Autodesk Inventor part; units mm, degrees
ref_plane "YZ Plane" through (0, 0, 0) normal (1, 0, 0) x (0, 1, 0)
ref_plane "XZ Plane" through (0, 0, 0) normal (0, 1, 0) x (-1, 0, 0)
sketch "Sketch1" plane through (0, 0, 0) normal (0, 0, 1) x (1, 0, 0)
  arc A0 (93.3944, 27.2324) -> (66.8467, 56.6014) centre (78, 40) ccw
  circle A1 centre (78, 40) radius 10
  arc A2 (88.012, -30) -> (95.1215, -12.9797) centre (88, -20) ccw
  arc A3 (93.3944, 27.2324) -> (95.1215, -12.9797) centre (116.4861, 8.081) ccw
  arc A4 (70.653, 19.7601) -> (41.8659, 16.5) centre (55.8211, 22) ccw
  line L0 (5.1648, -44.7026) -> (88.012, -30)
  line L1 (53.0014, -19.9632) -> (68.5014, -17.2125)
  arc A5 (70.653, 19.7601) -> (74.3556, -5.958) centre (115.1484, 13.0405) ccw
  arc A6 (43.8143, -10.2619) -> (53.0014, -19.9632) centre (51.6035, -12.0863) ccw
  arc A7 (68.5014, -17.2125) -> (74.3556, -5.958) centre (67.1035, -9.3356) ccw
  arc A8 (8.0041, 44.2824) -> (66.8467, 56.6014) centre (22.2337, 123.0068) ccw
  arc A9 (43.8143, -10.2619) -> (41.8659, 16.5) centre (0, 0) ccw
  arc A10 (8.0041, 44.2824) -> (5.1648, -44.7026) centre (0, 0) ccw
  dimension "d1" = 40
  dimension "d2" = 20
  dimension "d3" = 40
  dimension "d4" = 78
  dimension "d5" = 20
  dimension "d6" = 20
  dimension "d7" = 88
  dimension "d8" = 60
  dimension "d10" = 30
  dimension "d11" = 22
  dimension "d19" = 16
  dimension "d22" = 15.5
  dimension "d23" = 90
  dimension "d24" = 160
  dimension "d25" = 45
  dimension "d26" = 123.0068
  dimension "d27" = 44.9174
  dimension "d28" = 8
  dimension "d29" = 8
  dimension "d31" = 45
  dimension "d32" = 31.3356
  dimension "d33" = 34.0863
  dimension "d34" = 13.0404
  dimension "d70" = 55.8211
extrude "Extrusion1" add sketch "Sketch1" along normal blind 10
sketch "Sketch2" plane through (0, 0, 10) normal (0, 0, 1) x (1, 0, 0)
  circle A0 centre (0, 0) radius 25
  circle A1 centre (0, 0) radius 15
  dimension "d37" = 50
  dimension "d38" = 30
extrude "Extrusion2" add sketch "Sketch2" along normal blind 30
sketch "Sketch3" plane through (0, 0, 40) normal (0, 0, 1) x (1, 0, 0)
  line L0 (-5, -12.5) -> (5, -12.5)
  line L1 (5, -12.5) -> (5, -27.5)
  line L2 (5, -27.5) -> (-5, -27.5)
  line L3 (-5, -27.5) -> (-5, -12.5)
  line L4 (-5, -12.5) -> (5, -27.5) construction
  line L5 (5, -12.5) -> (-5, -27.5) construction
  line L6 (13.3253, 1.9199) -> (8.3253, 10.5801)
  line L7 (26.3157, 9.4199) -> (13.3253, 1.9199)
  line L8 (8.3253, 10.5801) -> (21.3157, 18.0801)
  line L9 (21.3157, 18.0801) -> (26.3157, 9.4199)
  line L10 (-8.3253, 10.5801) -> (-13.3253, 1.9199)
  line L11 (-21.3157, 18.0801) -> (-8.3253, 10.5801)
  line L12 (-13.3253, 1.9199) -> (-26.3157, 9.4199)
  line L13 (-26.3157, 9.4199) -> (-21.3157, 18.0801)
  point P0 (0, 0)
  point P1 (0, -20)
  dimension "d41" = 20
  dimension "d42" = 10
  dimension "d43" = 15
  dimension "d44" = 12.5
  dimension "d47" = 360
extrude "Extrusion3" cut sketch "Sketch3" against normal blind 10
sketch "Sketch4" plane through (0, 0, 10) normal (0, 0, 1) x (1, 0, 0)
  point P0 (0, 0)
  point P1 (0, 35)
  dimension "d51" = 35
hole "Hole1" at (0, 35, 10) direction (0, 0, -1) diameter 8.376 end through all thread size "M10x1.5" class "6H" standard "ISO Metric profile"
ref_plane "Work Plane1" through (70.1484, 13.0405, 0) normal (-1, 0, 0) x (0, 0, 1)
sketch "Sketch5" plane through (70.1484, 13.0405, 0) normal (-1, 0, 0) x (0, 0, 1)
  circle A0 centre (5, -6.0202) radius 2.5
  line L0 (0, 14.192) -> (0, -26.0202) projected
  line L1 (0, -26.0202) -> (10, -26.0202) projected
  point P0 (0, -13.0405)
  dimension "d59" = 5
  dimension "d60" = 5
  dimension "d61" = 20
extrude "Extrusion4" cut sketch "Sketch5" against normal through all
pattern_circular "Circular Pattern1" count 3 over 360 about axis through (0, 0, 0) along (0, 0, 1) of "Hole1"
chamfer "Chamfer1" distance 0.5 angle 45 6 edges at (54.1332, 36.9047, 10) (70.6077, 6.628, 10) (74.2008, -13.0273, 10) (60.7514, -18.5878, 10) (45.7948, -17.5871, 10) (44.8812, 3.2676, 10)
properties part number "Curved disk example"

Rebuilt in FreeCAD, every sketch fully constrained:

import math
import FreeCAD as App
import Part
import Sketcher
Q = App.Units.Quantity


def edges_at(feature, points):
    """Names of the edges that pass closest to the given points."""
    edges = feature.Shape.Edges
    near = lambda p: min(range(len(edges)), key=lambda i: edges[i].distToShape(Part.Vertex(*p))[0])
    return sorted({f"Edge{near(p) + 1}" for p in points})

doc = App.newDocument("Part")
body = doc.addObject("PartDesign::Body", "Body")

# Sketch on XY plane
sketch1 = body.newObject("Sketcher::SketchObject", "Sketch")
sketch1.AttachmentSupport = (doc.getObject("XY_Plane"), [""])
sketch1.MapMode = "FlatFace"
sketch1.addGeometry([
    Part.ArcOfCircle(Part.Circle(App.Vector(116.4861, 8.081, 0), App.Vector(0, 0, 1), 30.000046), math.radians(140.328946), math.radians(224.589587)),  # 0
    Part.ArcOfCircle(Part.Circle(App.Vector(78, 40, 0), App.Vector(0, 0, 1), 19.999979), math.radians(-39.671176), math.radians(123.894346)),  # 1
    Part.ArcOfCircle(Part.Circle(App.Vector(22.2337, 123.0068, 0), App.Vector(0, 0, 1), 80.000079), math.radians(-100.245708), math.radians(-56.105693)),  # 2
    Part.ArcOfCircle(Part.Circle(App.Vector(0, 0, 0), App.Vector(0, 0, 1), 44.999962), math.radians(79.754338), math.radians(276.590555)),  # 3
    Part.LineSegment(App.Vector(5.1648, -44.7026, 0), App.Vector(88.012, -30, 0)),  # 4
    Part.ArcOfCircle(Part.Circle(App.Vector(88, -20, 0), App.Vector(0, 0, 1), 10.000007), math.radians(-89.931245), math.radians(44.589993)),  # 5
    Part.ArcOfCircle(Part.Circle(App.Vector(55.8211, 22, 0), App.Vector(0, 0, 1), 15.00008), math.radians(-8.587862), math.radians(201.510308)),  # 6
    Part.ArcOfCircle(Part.Circle(App.Vector(115.1484, 13.0405, 0), App.Vector(0, 0, 1), 44.999929), math.radians(171.412207), math.radians(204.972888)),  # 7
    Part.ArcOfCircle(Part.Circle(App.Vector(67.1035, -9.3356, 0), App.Vector(0, 0, 1), 7.99998), math.radians(-79.936592), math.radians(24.973324)),  # 8
    Part.LineSegment(App.Vector(68.5014, -17.2125, 0), App.Vector(53.0014, -19.9632, 0)),  # 9
    Part.ArcOfCircle(Part.Circle(App.Vector(51.6035, -12.0863, 0), App.Vector(0, 0, 1), 8.000004), math.radians(166.817713), math.radians(280.063408)),  # 10
    Part.ArcOfCircle(Part.Circle(App.Vector(0, 0, 0), App.Vector(0, 0, 1), 44.999994), math.radians(-13.181838), math.radians(21.510168)),  # 11
    Part.Circle(App.Vector(78, 40, 0), App.Vector(0, 0, 1), 10),  # 12
], False)
sketch1.addConstraint([
    Sketcher.Constraint("Coincident", 0, 1, 1, 1),
    Sketcher.Constraint("Coincident", 1, 2, 2, 2),
    Sketcher.Constraint("Coincident", 2, 1, 3, 1),
    Sketcher.Constraint("Coincident", 3, 2, 4, 1),
    Sketcher.Constraint("Coincident", 4, 2, 5, 1),
    Sketcher.Constraint("Coincident", 5, 2, 0, 2),
    Sketcher.Constraint("Coincident", 6, 1, 7, 1),
    Sketcher.Constraint("Coincident", 7, 2, 8, 2),
    Sketcher.Constraint("Coincident", 8, 1, 9, 1),
    Sketcher.Constraint("Coincident", 9, 2, 10, 2),
    Sketcher.Constraint("Coincident", 10, 1, 11, 1),
    Sketcher.Constraint("Coincident", 11, 2, 6, 2),
    Sketcher.Constraint("Coincident", 3, 3, -1, 1),
    Sketcher.Constraint("Coincident", 11, 3, -1, 1),
    Sketcher.Constraint("Coincident", 12, 3, 1, 3),
    Sketcher.Constraint("Diameter", 12, 20.0),
    Sketcher.Constraint("Radius", 0, 30.0),
    Sketcher.Constraint("Radius", 1, 20.0),
    Sketcher.Constraint("Radius", 2, 80.0),
    Sketcher.Constraint("Radius", 3, 45.0),
    Sketcher.Constraint("Radius", 5, 10.0),
    Sketcher.Constraint("Radius", 6, 15.0),
    Sketcher.Constraint("Radius", 7, 45.0),
    Sketcher.Constraint("Radius", 8, 8.0),
    Sketcher.Constraint("Radius", 10, 8.0),
    Sketcher.Constraint("Radius", 11, 45.0),
    Sketcher.Constraint("DistanceX", -1, 1, 1, 3, 78.0),
    Sketcher.Constraint("DistanceY", -1, 1, 1, 3, 40.0),
    Sketcher.Constraint("DistanceX", -1, 1, 5, 3, 88.0),
    Sketcher.Constraint("DistanceY", 5, 3, -1, 1, 20.0),
    Sketcher.Constraint("DistanceY", -1, 1, 6, 3, 22.0),
    Sketcher.Constraint("DistanceX", 10, 3, 8, 3, 15.5),
    Sketcher.Constraint("DistanceX", 9, 2, 8, 1, 15.5),
    Sketcher.Constraint("DistanceY", -1, 1, 7, 3, 13.0405),
    Sketcher.Constraint("DistanceY", -1, 1, 11, 2, 16.5),
    Sketcher.Constraint("DistanceY", 8, 3, 6, 3, 31.3356),
    Sketcher.Constraint("DistanceY", -1, 1, 6, 1, 19.76),
    Sketcher.Constraint("DistanceX", -1, 1, 2, 1, 8.004),
    Sketcher.Constraint("DistanceX", -1, 1, 4, 2, 88.012),
    Sketcher.Constraint("DistanceY", 7, 2, -1, 1, 5.958),
    Sketcher.Constraint("DistanceY", 10, 1, -1, 1, 10.262),
    Sketcher.Constraint("DistanceX", 0, 1, 7, 3, 21.754),
    Sketcher.Constraint("DistanceY", 0, 1, 1, 2, 29.369),
    Sketcher.Constraint("DistanceY", 3, 2, 8, 3, 35.367),
    Sketcher.Constraint("DistanceX", 8, 3, 5, 2, 28.018),
    Sketcher.Constraint("DistanceX", 8, 3, 8, 1, 1.398),
])
pad1 = body.newObject("PartDesign::Pad", "Pad")
pad1.Profile = sketch1
pad1.Length = 10

# Sketch on XY plane
sketch2 = body.newObject("Sketcher::SketchObject", "Sketch001")
sketch2.AttachmentSupport = (doc.getObject("XY_Plane"), [""])
sketch2.MapMode = "FlatFace"
sketch2.AttachmentOffset = App.Placement(App.Vector(0, 0, 10), App.Rotation())
sketch2.addGeometry([
    Part.Circle(App.Vector(0, 0, 0), App.Vector(0, 0, 1), 25),
    Part.Circle(App.Vector(0, 0, 0), App.Vector(0, 0, 1), 15),
], False)
sketch2.addConstraint([
    Sketcher.Constraint("Coincident", 0, 3, -1, 1),
    Sketcher.Constraint("Coincident", 1, 3, -1, 1),
    Sketcher.Constraint("Diameter", 0, 50.0),
    Sketcher.Constraint("Diameter", 1, 30.0),
])
pad2 = body.newObject("PartDesign::Pad", "Pad001")
pad2.Profile = sketch2
pad2.Length = 30

# Sketch on XY plane
sketch3 = body.newObject("Sketcher::SketchObject", "Sketch002")
sketch3.AttachmentSupport = (doc.getObject("XY_Plane"), [""])
sketch3.MapMode = "FlatFace"
sketch3.AttachmentOffset = App.Placement(App.Vector(0, 0, 40), App.Rotation())
sketch3.addGeometry([
    Part.LineSegment(App.Vector(5, -12, 0), App.Vector(-5, -12, 0)),  # 0
    Part.LineSegment(App.Vector(-5, -12, 0), App.Vector(-5, -28, 0)),  # 1
    Part.LineSegment(App.Vector(-5, -28, 0), App.Vector(5, -28, 0)),  # 2
    Part.LineSegment(App.Vector(5, -28, 0), App.Vector(5, -12, 0)),  # 3
    Part.LineSegment(App.Vector(8, 11, 0), App.Vector(13, 2, 0)),  # 4
    Part.LineSegment(App.Vector(13, 2, 0), App.Vector(26, 9, 0)),  # 5
    Part.LineSegment(App.Vector(26, 9, 0), App.Vector(21, 18, 0)),  # 6
    Part.LineSegment(App.Vector(21, 18, 0), App.Vector(8, 11, 0)),  # 7
    Part.LineSegment(App.Vector(-13, 2, 0), App.Vector(-8, 11, 0)),  # 8
    Part.LineSegment(App.Vector(-8, 11, 0), App.Vector(-21, 18, 0)),  # 9
    Part.LineSegment(App.Vector(-21, 18, 0), App.Vector(-26, 9, 0)),  # 10
    Part.LineSegment(App.Vector(-26, 9, 0), App.Vector(-13, 2, 0)),  # 11
], False)
sketch3.addConstraint([
    Sketcher.Constraint("Coincident", 0, 2, 1, 1),
    Sketcher.Constraint("Coincident", 1, 2, 2, 1),
    Sketcher.Constraint("Coincident", 2, 2, 3, 1),
    Sketcher.Constraint("Coincident", 3, 2, 0, 1),
    Sketcher.Constraint("Coincident", 4, 2, 5, 1),
    Sketcher.Constraint("Coincident", 5, 2, 6, 1),
    Sketcher.Constraint("Coincident", 6, 2, 7, 1),
    Sketcher.Constraint("Coincident", 7, 2, 4, 1),
    Sketcher.Constraint("Coincident", 8, 2, 9, 1),
    Sketcher.Constraint("Coincident", 9, 2, 10, 1),
    Sketcher.Constraint("Coincident", 10, 2, 11, 1),
    Sketcher.Constraint("Coincident", 11, 2, 8, 1),
    Sketcher.Constraint("Horizontal", 0),
    Sketcher.Constraint("Vertical", 1),
    Sketcher.Constraint("Horizontal", 2),
    Sketcher.Constraint("Vertical", 3),
    Sketcher.Constraint("Symmetric", 7, 2, 8, 2, -2),
    Sketcher.Constraint("Symmetric", 6, 2, 9, 2, -2),
    Sketcher.Constraint("Symmetric", 5, 2, 10, 2, -2),
    Sketcher.Constraint("Symmetric", 4, 2, 11, 2, -2),
    Sketcher.Constraint("Perpendicular", 4, 5),
    Sketcher.Constraint("Perpendicular", 5, 6),
    Sketcher.Constraint("Perpendicular", 6, 7),
    Sketcher.Constraint("DistanceX", 0, 2, 0, 1, 10.0),
    Sketcher.Constraint("DistanceY", 1, 2, 1, 1, 15.0),
    Sketcher.Constraint("Distance", 4, 10.0),
    Sketcher.Constraint("Distance", 5, 15.0),
    Sketcher.Constraint("DistanceY", 0, 2, -1, 1, 12.5),
    Sketcher.Constraint("Angle", 4, Q("-59.9998 deg")),
    Sketcher.Constraint("DistanceX", 0, 2, -1, 1, 5.0),
    Sketcher.Constraint("DistanceY", -1, 1, 4, 2, 1.92),
    Sketcher.Constraint("DistanceX", 8, 2, 6, 2, 29.641),
])
pocket1 = body.newObject("PartDesign::Pocket", "Pocket")
pocket1.Profile = sketch3
pocket1.Length = 10

# Sketch on XY plane
sketch4 = body.newObject("Sketcher::SketchObject", "Sketch003")
sketch4.AttachmentSupport = (doc.getObject("XY_Plane"), [""])
sketch4.MapMode = "FlatFace"
sketch4.AttachmentOffset = App.Placement(App.Vector(0, 0, 10), App.Rotation())
sketch4.addGeometry(Part.Circle(App.Vector(0, 35, 0), App.Vector(0, 0, 1), 4.2), False)
sketch4.addConstraint([
    Sketcher.Constraint("PointOnObject", 0, 3, -2),
    Sketcher.Constraint("Diameter", 0, 8.376),
    Sketcher.Constraint("DistanceY", -1, 1, 0, 3, 35.0),
])
doc.recompute()
hole = body.newObject("PartDesign::Hole", "Hole")
hole.Profile = sketch4
hole.ThreadType = "None"
hole.Diameter = 8.376
hole.DepthType = "ThroughAll"

# Sketch on YZ plane
sketch5 = body.newObject("Sketcher::SketchObject", "Sketch004")
sketch5.AttachmentSupport = (doc.getObject("YZ_Plane"), [""])
sketch5.MapMode = "FlatFace"
sketch5.AttachmentOffset = App.Placement(App.Vector(0, 0, 70.1484), App.Rotation())
sketch5.addGeometry(Part.Circle(App.Vector(7, 5, 0), App.Vector(0, 0, 1), 2.5), False)
sketch5.addConstraint([
    Sketcher.Constraint("Diameter", 0, 5.0),
    Sketcher.Constraint("DistanceY", -1, 1, 0, 3, 5.0),
    Sketcher.Constraint("DistanceX", -1, 1, 0, 3, 7.0203),
])
pocket2 = body.newObject("PartDesign::Pocket", "Pocket001")
pocket2.Profile = sketch5
pocket2.Type = "ThroughAll"
pocket2.Reversed = True
doc.recompute()

polarpattern = body.newObject("PartDesign::PolarPattern", "PolarPattern")
polarpattern.Originals = [hole]
polarpattern.Axis = (doc.getObject("Z_Axis"), [""])
polarpattern.Angle = 360
polarpattern.Occurrences = 3
body.Tip = polarpattern
doc.recompute()

chamfer = body.newObject("PartDesign::Chamfer", "Chamfer")
chamfer.Base = (polarpattern, edges_at(polarpattern, [
    (54.133, 36.905, 10),
    (70.608, 6.628, 10),
    (74.201, -13.027, 10),
    (60.751, -18.588, 10),
    (45.795, -17.587, 10),
    (44.881, 3.268, 10),
]))
chamfer.Size = 0.5

doc.recompute()
